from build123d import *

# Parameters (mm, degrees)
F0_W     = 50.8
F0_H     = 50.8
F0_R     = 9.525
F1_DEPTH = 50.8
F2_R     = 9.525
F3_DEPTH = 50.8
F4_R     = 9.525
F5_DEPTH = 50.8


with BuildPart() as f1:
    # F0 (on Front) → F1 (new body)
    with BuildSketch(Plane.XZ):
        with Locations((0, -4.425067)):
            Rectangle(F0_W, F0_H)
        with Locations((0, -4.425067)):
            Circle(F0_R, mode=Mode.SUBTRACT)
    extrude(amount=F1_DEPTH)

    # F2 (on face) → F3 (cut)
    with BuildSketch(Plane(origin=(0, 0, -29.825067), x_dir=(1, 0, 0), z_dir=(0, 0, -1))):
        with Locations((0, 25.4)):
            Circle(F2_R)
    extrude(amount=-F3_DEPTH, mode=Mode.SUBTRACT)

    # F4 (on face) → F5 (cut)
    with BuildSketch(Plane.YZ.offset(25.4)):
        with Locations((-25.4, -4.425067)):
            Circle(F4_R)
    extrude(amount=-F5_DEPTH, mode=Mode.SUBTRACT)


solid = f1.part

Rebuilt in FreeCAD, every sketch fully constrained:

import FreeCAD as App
import Part
import Sketcher
from FreeCAD import Vector
Q = App.Units.Quantity

doc = App.newDocument("Part")
body = doc.addObject("PartDesign::Body", "Body")

sketch1 = doc.addObject("Sketcher::SketchObject", "Sketch")
body.addObject(sketch1)
sketch1.AttachmentSupport = (doc.XZ_Plane, [""])
sketch1.MapMode = "FlatFace"
sketch1.addGeometry([
    Part.LineSegment(Vector(-25, 21, 0), Vector(-25, -30, 0)),
    Part.LineSegment(Vector(-25, -30, 0), Vector(25, -30, 0)),
    Part.LineSegment(Vector(25, -30, 0), Vector(25, 21, 0)),
    Part.LineSegment(Vector(25, 21, 0), Vector(-25, 21, 0)),
    Part.Circle(Vector(0, -4, 0), Vector(0, 0, 1), 10),
], False)
sketch1.addConstraint([
    Sketcher.Constraint("Coincident", 0, 2, 1, 1),
    Sketcher.Constraint("Coincident", 1, 2, 2, 1),
    Sketcher.Constraint("Coincident", 2, 2, 3, 1),
    Sketcher.Constraint("Coincident", 3, 2, 0, 1),
    Sketcher.Constraint("Vertical", 0),
    Sketcher.Constraint("Horizontal", 1),
    Sketcher.Constraint("Vertical", 2),
    Sketcher.Constraint("Horizontal", 3),
    Sketcher.Constraint("PointOnObject", 4, 3, -2),
    Sketcher.Constraint("Equal", 3, 0),
    Sketcher.Constraint("Diameter", 4, Q("0.75 in")),
    Sketcher.Constraint("DistanceX", 1, 1, 1, 2, Q("2 in")),
    Sketcher.Constraint("DistanceX", 0, 2, -1, 1, Q("1 in")),
    Sketcher.Constraint("DistanceY", 0, 2, 4, 3, Q("1 in")),
    Sketcher.Constraint("DistanceY", 4, 3, -1, 1, 4.425067),
])
pad1 = doc.addObject("PartDesign::Pad", "Pad")
body.addObject(pad1)
pad1.Profile = sketch1
pad1.Length = Q("2 in")

sketch2 = doc.addObject("Sketcher::SketchObject", "Sketch001")
body.addObject(sketch2)
sketch2.AttachmentSupport = (doc.XY_Plane, [""])
sketch2.MapMode = "FlatFace"
sketch2.AttachmentOffset = App.Placement(Vector(0, 0, -29.825067), App.Rotation())
sketch2.addGeometry(Part.Circle(Vector(0, -25, 0), Vector(0, 0, 1), 10), False)
sketch2.addConstraint([
    Sketcher.Constraint("PointOnObject", 0, 3, -2),
    Sketcher.Constraint("Diameter", 0, Q("0.75 in")),
    Sketcher.Constraint("DistanceY", 0, 3, -1, 1, Q("1 in")),
])
pocket1 = doc.addObject("PartDesign::Pocket", "Pocket")
body.addObject(pocket1)
pocket1.Profile = sketch2
pocket1.Length = Q("2 in")
pocket1.Reversed = True

sketch3 = doc.addObject("Sketcher::SketchObject", "Sketch002")
body.addObject(sketch3)
sketch3.AttachmentSupport = (doc.YZ_Plane, [""])
sketch3.MapMode = "FlatFace"
sketch3.AttachmentOffset = App.Placement(Vector(0, 0, 1 * 25.4), App.Rotation())
sketch3.addGeometry(Part.Circle(Vector(-25, -4, 0), Vector(0, 0, 1), 10), False)
sketch3.addConstraint([
    Sketcher.Constraint("Diameter", 0, Q("0.75 in")),
    Sketcher.Constraint("DistanceX", 0, 3, -1, 1, Q("1 in")),
    Sketcher.Constraint("DistanceY", 0, 3, -1, 1, 4.425067),
])
pocket2 = doc.addObject("PartDesign::Pocket", "Pocket001")
body.addObject(pocket2)
pocket2.Profile = sketch3
pocket2.Length = Q("2 in")

doc.recompute()
